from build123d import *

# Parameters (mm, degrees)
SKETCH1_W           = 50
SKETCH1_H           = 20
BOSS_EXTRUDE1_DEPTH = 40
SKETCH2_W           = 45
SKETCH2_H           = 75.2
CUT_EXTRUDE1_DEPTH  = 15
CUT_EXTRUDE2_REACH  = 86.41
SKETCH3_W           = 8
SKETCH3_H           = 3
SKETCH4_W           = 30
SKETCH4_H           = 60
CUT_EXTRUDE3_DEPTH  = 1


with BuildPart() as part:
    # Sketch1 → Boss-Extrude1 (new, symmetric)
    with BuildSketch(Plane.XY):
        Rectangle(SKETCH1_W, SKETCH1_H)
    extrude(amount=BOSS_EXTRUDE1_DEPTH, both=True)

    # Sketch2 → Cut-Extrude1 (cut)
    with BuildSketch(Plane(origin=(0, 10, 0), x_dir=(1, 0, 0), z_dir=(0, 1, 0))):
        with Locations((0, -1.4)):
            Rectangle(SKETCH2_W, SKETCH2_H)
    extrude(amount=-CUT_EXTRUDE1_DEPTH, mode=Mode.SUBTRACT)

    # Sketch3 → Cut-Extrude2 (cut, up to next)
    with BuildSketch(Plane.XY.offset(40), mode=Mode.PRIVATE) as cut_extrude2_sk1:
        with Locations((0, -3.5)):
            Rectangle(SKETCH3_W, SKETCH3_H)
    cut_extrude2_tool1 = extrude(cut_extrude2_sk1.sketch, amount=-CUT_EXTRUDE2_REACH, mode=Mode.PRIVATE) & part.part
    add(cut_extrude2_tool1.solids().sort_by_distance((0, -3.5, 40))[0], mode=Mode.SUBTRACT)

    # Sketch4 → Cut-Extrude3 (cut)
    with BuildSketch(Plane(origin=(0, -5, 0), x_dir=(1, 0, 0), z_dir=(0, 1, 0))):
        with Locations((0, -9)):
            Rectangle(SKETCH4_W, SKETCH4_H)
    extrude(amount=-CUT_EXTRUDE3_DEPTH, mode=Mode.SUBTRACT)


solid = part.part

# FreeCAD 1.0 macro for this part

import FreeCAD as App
import Part
import Sketcher
from FreeCAD import Vector

doc = App.newDocument("Part")
body = doc.addObject("PartDesign::Body", "Body")

sketch1 = body.newObject("Sketcher::SketchObject", "Sketch")
sketch1.AttachmentSupport = (doc.getObject("XY_Plane"), [""])
sketch1.MapMode = "FlatFace"
sketch1.addGeometry([
    Part.LineSegment(Vector(-25, 10, 0), Vector(-25, -10, 0)),
    Part.LineSegment(Vector(-25, -10, 0), Vector(25, -10, 0)),
    Part.LineSegment(Vector(25, -10, 0), Vector(25, 10, 0)),
    Part.LineSegment(Vector(25, 10, 0), Vector(-25, 10, 0)),
], False)
sketch1.addConstraint([
    Sketcher.Constraint("Coincident", 0, 2, 1, 1),
    Sketcher.Constraint("Coincident", 1, 2, 2, 1),
    Sketcher.Constraint("Coincident", 2, 2, 3, 1),
    Sketcher.Constraint("Coincident", 3, 2, 0, 1),
    Sketcher.Constraint("Vertical", 0),
    Sketcher.Constraint("Horizontal", 1),
    Sketcher.Constraint("Vertical", 2),
    Sketcher.Constraint("Horizontal", 3),
    Sketcher.Constraint("Symmetric", 0, 2, 2, 2, -1, 1),
    Sketcher.Constraint("DistanceX", 1, 1, 1, 2, 50.0),
    Sketcher.Constraint("DistanceY", 0, 2, 0, 1, 20.0),
])
pad1 = body.newObject("PartDesign::Pad", "Pad")
pad1.Profile = sketch1
pad1.Length = 80
pad1.Midplane = True

sketch2 = body.newObject("Sketcher::SketchObject", "Sketch001")
sketch2.AttachmentSupport = (doc.getObject("XZ_Plane"), [""])
sketch2.MapMode = "FlatFace"
sketch2.AttachmentOffset = App.Placement(Vector(0, 0, -10), App.Rotation())
sketch2.addGeometry([
    Part.LineSegment(Vector(-22, -36, 0), Vector(-22, 39, 0)),
    Part.LineSegment(Vector(-22, 39, 0), Vector(22, 39, 0)),
    Part.LineSegment(Vector(22, 39, 0), Vector(22, -36, 0)),
    Part.LineSegment(Vector(22, -36, 0), Vector(-22, -36, 0)),
], False)
sketch2.addConstraint([
    Sketcher.Constraint("Coincident", 0, 2, 1, 1),
    Sketcher.Constraint("Coincident", 1, 2, 2, 1),
    Sketcher.Constraint("Coincident", 2, 2, 3, 1),
    Sketcher.Constraint("Coincident", 3, 2, 0, 1),
    Sketcher.Constraint("Vertical", 0),
    Sketcher.Constraint("Horizontal", 1),
    Sketcher.Constraint("Vertical", 2),
    Sketcher.Constraint("Horizontal", 3),
    Sketcher.Constraint("DistanceX", 1, 1, 1, 2, 45.0),
    Sketcher.Constraint("DistanceY", 0, 1, 0, 2, 75.2),
    Sketcher.Constraint("DistanceY", -1, 1, 0, 2, 39.0),
    Sketcher.Constraint("DistanceX", 0, 2, -1, 1, 22.5),
])
pocket1 = body.newObject("PartDesign::Pocket", "Pocket")
pocket1.Profile = sketch2
pocket1.Length = 15
pocket1.Reversed = True

sketch3 = body.newObject("Sketcher::SketchObject", "Sketch002")
sketch3.AttachmentSupport = (doc.getObject("XY_Plane"), [""])
sketch3.MapMode = "FlatFace"
sketch3.AttachmentOffset = App.Placement(Vector(0, 0, 40), App.Rotation())
sketch3.addGeometry([
    Part.LineSegment(Vector(-4, -2, 0), Vector(-4, -5, 0)),
    Part.LineSegment(Vector(-4, -5, 0), Vector(4, -5, 0)),
    Part.LineSegment(Vector(4, -5, 0), Vector(4, -2, 0)),
    Part.LineSegment(Vector(4, -2, 0), Vector(-4, -2, 0)),
], False)
sketch3.addConstraint([
    Sketcher.Constraint("Coincident", 0, 2, 1, 1),
    Sketcher.Constraint("Coincident", 1, 2, 2, 1),
    Sketcher.Constraint("Coincident", 2, 2, 3, 1),
    Sketcher.Constraint("Coincident", 3, 2, 0, 1),
    Sketcher.Constraint("Vertical", 0),
    Sketcher.Constraint("Horizontal", 1),
    Sketcher.Constraint("Vertical", 2),
    Sketcher.Constraint("Horizontal", 3),
    Sketcher.Constraint("DistanceX", 1, 1, 1, 2, 8.0),
    Sketcher.Constraint("DistanceY", 0, 2, 0, 1, 3.0),
    Sketcher.Constraint("DistanceX", 0, 2, -1, 1, 4.0),
    Sketcher.Constraint("DistanceY", 0, 2, -1, 1, 5.0),
])
pocket2 = body.newObject("PartDesign::Pocket", "Pocket001")
pocket2.Profile = sketch3
pocket2.Type = "UpToFirst"

sketch4 = body.newObject("Sketcher::SketchObject", "Sketch003")
sketch4.AttachmentSupport = (doc.getObject("XZ_Plane"), [""])
sketch4.MapMode = "FlatFace"
sketch4.AttachmentOffset = App.Placement(Vector(0, 0, 5), App.Rotation())
sketch4.addGeometry([
    Part.LineSegment(Vector(-15, -21, 0), Vector(-15, 39, 0)),
    Part.LineSegment(Vector(-15, 39, 0), Vector(15, 39, 0)),
    Part.LineSegment(Vector(15, 39, 0), Vector(15, -21, 0)),
    Part.LineSegment(Vector(15, -21, 0), Vector(-15, -21, 0)),
], False)
sketch4.addConstraint([
    Sketcher.Constraint("Coincident", 0, 2, 1, 1),
    Sketcher.Constraint("Coincident", 1, 2, 2, 1),
    Sketcher.Constraint("Coincident", 2, 2, 3, 1),
    Sketcher.Constraint("Coincident", 3, 2, 0, 1),
    Sketcher.Constraint("Vertical", 0),
    Sketcher.Constraint("Horizontal", 1),
    Sketcher.Constraint("Vertical", 2),
    Sketcher.Constraint("Horizontal", 3),
    Sketcher.Constraint("DistanceX", 1, 1, 1, 2, 30.0),
    Sketcher.Constraint("DistanceY", 0, 1, 0, 2, 60.0),
    Sketcher.Constraint("DistanceX", 0, 2, -1, 1, 15.0),
    Sketcher.Constraint("DistanceY", -1, 1, 0, 2, 39.0),
])
pocket3 = body.newObject("PartDesign::Pocket", "Pocket002")
pocket3.Profile = sketch4
pocket3.Length = 1
pocket3.Reversed = True

doc.recompute()
